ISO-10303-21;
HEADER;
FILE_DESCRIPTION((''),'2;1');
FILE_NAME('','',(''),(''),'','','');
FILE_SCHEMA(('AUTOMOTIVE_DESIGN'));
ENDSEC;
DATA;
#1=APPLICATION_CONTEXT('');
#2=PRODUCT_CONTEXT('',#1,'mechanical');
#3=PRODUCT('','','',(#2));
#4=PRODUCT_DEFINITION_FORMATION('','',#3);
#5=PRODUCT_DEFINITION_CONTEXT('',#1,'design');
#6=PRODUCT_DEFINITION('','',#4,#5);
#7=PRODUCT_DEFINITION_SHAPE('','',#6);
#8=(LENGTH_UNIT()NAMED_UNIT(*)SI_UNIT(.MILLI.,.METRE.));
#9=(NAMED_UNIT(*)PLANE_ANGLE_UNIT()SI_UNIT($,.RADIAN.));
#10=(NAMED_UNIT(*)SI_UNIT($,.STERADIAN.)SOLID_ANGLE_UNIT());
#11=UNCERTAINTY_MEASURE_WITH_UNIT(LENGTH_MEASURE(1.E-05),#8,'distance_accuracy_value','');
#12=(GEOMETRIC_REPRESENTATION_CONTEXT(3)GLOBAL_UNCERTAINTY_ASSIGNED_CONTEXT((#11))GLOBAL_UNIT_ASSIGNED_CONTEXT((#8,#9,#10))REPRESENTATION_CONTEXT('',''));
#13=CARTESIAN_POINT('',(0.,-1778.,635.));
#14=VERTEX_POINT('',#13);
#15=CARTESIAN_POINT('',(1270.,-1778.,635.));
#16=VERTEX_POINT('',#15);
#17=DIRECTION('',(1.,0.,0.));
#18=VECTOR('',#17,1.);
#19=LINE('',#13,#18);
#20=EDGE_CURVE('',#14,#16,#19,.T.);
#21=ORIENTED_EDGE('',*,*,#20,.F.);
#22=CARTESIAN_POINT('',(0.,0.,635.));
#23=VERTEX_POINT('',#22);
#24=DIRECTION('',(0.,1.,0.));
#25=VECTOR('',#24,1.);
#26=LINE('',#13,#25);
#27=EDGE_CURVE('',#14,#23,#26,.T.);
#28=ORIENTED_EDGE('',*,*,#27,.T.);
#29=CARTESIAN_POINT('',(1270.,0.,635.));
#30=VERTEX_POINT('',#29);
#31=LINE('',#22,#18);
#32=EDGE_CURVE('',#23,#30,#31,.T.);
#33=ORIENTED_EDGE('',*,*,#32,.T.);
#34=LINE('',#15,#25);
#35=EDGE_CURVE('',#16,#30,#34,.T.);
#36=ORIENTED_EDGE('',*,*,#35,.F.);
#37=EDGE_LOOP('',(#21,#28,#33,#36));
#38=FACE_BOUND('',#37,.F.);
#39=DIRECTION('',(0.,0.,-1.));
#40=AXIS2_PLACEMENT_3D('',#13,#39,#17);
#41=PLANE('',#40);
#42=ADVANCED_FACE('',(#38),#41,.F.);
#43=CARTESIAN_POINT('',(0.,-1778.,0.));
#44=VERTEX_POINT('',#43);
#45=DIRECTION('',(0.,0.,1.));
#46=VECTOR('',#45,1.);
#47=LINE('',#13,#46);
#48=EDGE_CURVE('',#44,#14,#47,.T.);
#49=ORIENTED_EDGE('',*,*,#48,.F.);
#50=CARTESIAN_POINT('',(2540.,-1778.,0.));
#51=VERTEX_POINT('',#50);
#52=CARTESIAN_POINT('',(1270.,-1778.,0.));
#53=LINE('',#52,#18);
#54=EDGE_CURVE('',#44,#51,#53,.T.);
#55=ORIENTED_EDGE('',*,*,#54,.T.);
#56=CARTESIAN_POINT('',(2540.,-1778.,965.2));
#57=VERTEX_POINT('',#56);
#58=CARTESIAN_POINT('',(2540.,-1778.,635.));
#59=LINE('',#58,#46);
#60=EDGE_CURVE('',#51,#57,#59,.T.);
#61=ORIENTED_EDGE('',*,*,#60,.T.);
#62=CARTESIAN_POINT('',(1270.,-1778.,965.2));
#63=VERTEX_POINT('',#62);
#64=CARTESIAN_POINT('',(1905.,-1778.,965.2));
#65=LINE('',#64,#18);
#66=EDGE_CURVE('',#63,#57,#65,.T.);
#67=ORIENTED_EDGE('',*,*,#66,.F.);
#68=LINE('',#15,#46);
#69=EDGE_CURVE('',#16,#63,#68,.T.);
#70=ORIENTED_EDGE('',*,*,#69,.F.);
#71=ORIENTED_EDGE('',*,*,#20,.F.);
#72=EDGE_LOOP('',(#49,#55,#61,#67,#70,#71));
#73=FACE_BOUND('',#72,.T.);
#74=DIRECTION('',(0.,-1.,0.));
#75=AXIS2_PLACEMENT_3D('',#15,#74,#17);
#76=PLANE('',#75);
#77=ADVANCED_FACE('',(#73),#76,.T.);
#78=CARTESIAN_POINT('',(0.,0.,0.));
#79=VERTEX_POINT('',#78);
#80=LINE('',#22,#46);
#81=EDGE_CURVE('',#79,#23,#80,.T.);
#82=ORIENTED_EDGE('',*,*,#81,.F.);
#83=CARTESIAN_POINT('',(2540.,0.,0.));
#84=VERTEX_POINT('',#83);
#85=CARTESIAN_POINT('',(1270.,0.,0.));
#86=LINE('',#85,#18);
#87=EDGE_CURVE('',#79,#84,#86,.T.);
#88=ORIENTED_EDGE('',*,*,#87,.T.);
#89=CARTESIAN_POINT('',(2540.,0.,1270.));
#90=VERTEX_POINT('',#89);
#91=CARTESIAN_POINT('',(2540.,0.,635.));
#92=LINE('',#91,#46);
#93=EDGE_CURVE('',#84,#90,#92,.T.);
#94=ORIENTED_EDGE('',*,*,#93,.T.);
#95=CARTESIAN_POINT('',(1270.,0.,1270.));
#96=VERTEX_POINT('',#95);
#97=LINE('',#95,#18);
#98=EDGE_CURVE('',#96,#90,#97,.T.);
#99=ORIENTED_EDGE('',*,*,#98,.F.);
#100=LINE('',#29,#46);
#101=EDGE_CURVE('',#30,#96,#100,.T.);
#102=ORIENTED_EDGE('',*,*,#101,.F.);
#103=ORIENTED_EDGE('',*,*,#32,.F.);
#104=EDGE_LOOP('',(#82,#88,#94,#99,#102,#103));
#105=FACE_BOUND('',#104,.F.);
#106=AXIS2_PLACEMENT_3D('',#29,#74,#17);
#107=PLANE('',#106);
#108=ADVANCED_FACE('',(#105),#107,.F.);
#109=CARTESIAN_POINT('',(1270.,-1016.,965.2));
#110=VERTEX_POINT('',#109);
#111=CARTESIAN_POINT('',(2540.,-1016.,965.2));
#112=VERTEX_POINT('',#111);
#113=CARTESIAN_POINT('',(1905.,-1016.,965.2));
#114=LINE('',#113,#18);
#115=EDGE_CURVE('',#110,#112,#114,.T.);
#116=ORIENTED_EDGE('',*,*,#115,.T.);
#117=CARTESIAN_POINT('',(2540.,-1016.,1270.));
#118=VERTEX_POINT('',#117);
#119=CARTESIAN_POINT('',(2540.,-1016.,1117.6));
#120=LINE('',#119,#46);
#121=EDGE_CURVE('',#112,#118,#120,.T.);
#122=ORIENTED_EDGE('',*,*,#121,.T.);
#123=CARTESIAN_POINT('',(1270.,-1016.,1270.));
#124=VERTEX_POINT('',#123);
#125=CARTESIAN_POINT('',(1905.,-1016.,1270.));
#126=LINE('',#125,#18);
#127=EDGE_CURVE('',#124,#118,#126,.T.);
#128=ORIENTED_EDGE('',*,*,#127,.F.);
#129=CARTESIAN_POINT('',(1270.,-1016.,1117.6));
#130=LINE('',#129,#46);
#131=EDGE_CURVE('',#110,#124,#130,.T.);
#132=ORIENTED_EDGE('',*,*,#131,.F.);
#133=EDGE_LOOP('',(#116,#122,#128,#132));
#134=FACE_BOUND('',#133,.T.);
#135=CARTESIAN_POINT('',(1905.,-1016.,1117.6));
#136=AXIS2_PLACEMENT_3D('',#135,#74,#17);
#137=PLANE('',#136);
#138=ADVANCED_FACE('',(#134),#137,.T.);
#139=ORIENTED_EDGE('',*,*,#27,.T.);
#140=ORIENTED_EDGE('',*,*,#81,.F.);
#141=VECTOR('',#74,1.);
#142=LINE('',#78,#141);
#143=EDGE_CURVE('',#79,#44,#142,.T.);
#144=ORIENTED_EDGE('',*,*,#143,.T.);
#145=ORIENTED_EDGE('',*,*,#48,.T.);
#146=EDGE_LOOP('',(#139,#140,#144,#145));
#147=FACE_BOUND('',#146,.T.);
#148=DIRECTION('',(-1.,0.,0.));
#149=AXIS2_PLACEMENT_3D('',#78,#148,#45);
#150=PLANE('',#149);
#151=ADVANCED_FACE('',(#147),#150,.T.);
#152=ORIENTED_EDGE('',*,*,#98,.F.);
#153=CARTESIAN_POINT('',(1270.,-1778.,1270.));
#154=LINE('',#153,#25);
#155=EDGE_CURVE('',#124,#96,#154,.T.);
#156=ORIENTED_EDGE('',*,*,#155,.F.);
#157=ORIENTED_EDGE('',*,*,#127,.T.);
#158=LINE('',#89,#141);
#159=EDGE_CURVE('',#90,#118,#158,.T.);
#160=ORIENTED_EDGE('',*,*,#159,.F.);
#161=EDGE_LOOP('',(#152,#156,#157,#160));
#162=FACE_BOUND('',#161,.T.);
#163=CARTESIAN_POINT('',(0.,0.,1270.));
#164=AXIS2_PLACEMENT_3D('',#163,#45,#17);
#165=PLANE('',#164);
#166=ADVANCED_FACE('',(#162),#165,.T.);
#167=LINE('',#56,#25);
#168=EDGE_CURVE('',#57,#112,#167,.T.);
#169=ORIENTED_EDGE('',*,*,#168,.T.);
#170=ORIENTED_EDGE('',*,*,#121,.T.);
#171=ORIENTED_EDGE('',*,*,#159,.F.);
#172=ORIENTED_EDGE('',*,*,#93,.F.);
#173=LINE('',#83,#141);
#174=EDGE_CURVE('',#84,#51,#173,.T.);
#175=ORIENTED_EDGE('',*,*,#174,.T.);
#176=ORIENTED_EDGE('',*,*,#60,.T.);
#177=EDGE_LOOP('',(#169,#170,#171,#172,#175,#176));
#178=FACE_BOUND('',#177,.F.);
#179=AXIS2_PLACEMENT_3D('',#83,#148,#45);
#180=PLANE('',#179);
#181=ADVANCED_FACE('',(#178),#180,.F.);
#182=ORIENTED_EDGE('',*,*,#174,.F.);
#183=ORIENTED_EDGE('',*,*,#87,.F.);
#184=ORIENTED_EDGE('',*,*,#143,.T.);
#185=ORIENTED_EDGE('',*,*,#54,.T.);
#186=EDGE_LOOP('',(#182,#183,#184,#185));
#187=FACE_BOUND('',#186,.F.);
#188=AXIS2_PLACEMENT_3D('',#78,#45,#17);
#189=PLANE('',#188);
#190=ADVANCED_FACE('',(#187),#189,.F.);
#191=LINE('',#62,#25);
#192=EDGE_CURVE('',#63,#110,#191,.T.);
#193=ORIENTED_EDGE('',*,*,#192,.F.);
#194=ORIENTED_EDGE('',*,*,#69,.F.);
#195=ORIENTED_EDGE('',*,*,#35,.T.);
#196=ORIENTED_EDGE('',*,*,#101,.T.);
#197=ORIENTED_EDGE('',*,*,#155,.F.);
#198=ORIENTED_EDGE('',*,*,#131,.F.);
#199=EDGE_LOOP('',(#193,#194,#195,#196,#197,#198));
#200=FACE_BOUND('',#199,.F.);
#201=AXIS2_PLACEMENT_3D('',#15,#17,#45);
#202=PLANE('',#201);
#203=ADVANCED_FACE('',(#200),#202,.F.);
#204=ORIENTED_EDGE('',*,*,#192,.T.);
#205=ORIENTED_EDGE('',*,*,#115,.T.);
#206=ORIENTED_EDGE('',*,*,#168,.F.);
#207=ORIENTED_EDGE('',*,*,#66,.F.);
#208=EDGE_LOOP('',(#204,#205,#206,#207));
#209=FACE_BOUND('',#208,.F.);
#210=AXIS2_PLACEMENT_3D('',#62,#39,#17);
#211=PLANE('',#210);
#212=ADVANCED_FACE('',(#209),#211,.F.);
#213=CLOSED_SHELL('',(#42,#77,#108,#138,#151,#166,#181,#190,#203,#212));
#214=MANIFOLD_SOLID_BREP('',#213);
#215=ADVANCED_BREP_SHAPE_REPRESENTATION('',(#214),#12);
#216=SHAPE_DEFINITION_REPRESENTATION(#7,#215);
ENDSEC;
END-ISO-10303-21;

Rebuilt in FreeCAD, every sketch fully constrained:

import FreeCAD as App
import Part
import Sketcher
Q = App.Units.Quantity

doc = App.newDocument("Part")
params = doc.addObject("Spreadsheet::Sheet", "Params")
for row, (alias, value) in enumerate([
    ("sketch1_width", "100 in"),
    ("sketch1_height", "50 in"),
    ("pad1_length", "70 in"),
    ("sketch2_width", "50 in"),
    ("sketch2_height", "12 in"),
    ("pocket1_length", "30 in"),
    ("sketch3_width", "50 in"),
    ("sketch3_height", "25 in"),
    ("pocket2_length", "70 in"),
], start=1):
    params.set(f"A{row}", alias)
    params.set(f"B{row}", "=" + value)
    params.setAlias(f"B{row}", alias)

body = doc.addObject("PartDesign::Body", "Body")

sketch1 = doc.addObject("Sketcher::SketchObject", "Sketch")
body.addObject(sketch1)
sketch1.AttachmentSupport = (doc.XZ_Plane, [""])
sketch1.MapMode = "FlatFace"
sketch1.addGeometry([
    Part.LineSegment(App.Vector(0, 1270, 0), App.Vector(0, 0, 0)),
    Part.LineSegment(App.Vector(0, 0, 0), App.Vector(2540, 0, 0)),
    Part.LineSegment(App.Vector(2540, 0, 0), App.Vector(2540, 1270, 0)),
    Part.LineSegment(App.Vector(2540, 1270, 0), App.Vector(0, 1270, 0)),
], False)
sketch1.addConstraint([
    Sketcher.Constraint("Coincident", 0, 2, 1, 1),
    Sketcher.Constraint("Coincident", 1, 2, 2, 1),
    Sketcher.Constraint("Coincident", 2, 2, 3, 1),
    Sketcher.Constraint("Coincident", 3, 2, 0, 1),
    Sketcher.Constraint("Vertical", 0),
    Sketcher.Constraint("Horizontal", 1),
    Sketcher.Constraint("Vertical", 2),
    Sketcher.Constraint("Horizontal", 3),
    Sketcher.Constraint("Coincident", 0, 2, -1, 1),
    Sketcher.Constraint("DistanceX", 1, 1, 1, 2, Q("100 in")),
    Sketcher.Constraint("DistanceY", 0, 2, 0, 1, Q("50 in")),
])
sketch1.setExpression("Constraints[9]", "Params.sketch1_width")
sketch1.setExpression("Constraints[10]", "Params.sketch1_height")
pad1 = doc.addObject("PartDesign::Pad", "Pad")
body.addObject(pad1)
pad1.Profile = sketch1
pad1.setExpression("Length", "Params.pad1_length")

sketch2 = doc.addObject("Sketcher::SketchObject", "Sketch001")
body.addObject(sketch2)
sketch2.AttachmentSupport = (doc.XZ_Plane, [""])
sketch2.MapMode = "FlatFace"
sketch2.AttachmentOffset = App.Placement(App.Vector(0, 0, 70 * 25.4), App.Rotation())
sketch2.addGeometry([
    Part.LineSegment(App.Vector(1270, 1270, 0), App.Vector(1270, 965, 0)),
    Part.LineSegment(App.Vector(1270, 965, 0), App.Vector(2540, 965, 0)),
    Part.LineSegment(App.Vector(2540, 965, 0), App.Vector(2540, 1270, 0)),
    Part.LineSegment(App.Vector(2540, 1270, 0), App.Vector(1270, 1270, 0)),
], False)
sketch2.addConstraint([
    Sketcher.Constraint("Coincident", 0, 2, 1, 1),
    Sketcher.Constraint("Coincident", 1, 2, 2, 1),
    Sketcher.Constraint("Coincident", 2, 2, 3, 1),
    Sketcher.Constraint("Coincident", 3, 2, 0, 1),
    Sketcher.Constraint("Vertical", 0),
    Sketcher.Constraint("Horizontal", 1),
    Sketcher.Constraint("Vertical", 2),
    Sketcher.Constraint("Horizontal", 3),
    Sketcher.Constraint("DistanceX", 1, 1, 1, 2, Q("50 in")),
    Sketcher.Constraint("DistanceY", 0, 2, 0, 1, Q("12 in")),
    Sketcher.Constraint("DistanceX", -1, 1, 0, 2, Q("50 in")),
    Sketcher.Constraint("DistanceY", -1, 1, 0, 2, Q("38 in")),
])
sketch2.setExpression("Constraints[8]", "Params.sketch2_width")
sketch2.setExpression("Constraints[9]", "Params.sketch2_height")
pocket1 = doc.addObject("PartDesign::Pocket", "Pocket")
body.addObject(pocket1)
pocket1.Profile = sketch2
pocket1.setExpression("Length", "Params.pocket1_length")

sketch3 = doc.addObject("Sketcher::SketchObject", "Sketch002")
body.addObject(sketch3)
sketch3.AttachmentSupport = (doc.XZ_Plane, [""])
sketch3.MapMode = "FlatFace"
sketch3.AttachmentOffset = App.Placement(App.Vector(0, 0, 70 * 25.4), App.Rotation())
sketch3.addGeometry([
    Part.LineSegment(App.Vector(1270, 635, 0), App.Vector(1270, 1270, 0)),
    Part.LineSegment(App.Vector(1270, 1270, 0), App.Vector(0, 1270, 0)),
    Part.LineSegment(App.Vector(0, 1270, 0), App.Vector(0, 635, 0)),
    Part.LineSegment(App.Vector(0, 635, 0), App.Vector(1270, 635, 0)),
], False)
sketch3.addConstraint([
    Sketcher.Constraint("Coincident", 0, 2, 1, 1),
    Sketcher.Constraint("Coincident", 1, 2, 2, 1),
    Sketcher.Constraint("Coincident", 2, 2, 3, 1),
    Sketcher.Constraint("Coincident", 3, 2, 0, 1),
    Sketcher.Constraint("Vertical", 0),
    Sketcher.Constraint("Horizontal", 1),
    Sketcher.Constraint("Vertical", 2),
    Sketcher.Constraint("Horizontal", 3),
    Sketcher.Constraint("PointOnObject", 1, 2, -2),
    Sketcher.Constraint("DistanceX", 1, 2, 1, 1, Q("50 in")),
    Sketcher.Constraint("DistanceY", 0, 1, 0, 2, Q("25 in")),
    Sketcher.Constraint("DistanceY", -1, 1, 0, 2, Q("50 in")),
])
sketch3.setExpression("Constraints[9]", "Params.sketch3_width")
sketch3.setExpression("Constraints[10]", "Params.sketch3_height")
pocket2 = doc.addObject("PartDesign::Pocket", "Pocket001")
body.addObject(pocket2)
pocket2.Profile = sketch3
pocket2.setExpression("Length", "Params.pocket2_length")

doc.recompute()
